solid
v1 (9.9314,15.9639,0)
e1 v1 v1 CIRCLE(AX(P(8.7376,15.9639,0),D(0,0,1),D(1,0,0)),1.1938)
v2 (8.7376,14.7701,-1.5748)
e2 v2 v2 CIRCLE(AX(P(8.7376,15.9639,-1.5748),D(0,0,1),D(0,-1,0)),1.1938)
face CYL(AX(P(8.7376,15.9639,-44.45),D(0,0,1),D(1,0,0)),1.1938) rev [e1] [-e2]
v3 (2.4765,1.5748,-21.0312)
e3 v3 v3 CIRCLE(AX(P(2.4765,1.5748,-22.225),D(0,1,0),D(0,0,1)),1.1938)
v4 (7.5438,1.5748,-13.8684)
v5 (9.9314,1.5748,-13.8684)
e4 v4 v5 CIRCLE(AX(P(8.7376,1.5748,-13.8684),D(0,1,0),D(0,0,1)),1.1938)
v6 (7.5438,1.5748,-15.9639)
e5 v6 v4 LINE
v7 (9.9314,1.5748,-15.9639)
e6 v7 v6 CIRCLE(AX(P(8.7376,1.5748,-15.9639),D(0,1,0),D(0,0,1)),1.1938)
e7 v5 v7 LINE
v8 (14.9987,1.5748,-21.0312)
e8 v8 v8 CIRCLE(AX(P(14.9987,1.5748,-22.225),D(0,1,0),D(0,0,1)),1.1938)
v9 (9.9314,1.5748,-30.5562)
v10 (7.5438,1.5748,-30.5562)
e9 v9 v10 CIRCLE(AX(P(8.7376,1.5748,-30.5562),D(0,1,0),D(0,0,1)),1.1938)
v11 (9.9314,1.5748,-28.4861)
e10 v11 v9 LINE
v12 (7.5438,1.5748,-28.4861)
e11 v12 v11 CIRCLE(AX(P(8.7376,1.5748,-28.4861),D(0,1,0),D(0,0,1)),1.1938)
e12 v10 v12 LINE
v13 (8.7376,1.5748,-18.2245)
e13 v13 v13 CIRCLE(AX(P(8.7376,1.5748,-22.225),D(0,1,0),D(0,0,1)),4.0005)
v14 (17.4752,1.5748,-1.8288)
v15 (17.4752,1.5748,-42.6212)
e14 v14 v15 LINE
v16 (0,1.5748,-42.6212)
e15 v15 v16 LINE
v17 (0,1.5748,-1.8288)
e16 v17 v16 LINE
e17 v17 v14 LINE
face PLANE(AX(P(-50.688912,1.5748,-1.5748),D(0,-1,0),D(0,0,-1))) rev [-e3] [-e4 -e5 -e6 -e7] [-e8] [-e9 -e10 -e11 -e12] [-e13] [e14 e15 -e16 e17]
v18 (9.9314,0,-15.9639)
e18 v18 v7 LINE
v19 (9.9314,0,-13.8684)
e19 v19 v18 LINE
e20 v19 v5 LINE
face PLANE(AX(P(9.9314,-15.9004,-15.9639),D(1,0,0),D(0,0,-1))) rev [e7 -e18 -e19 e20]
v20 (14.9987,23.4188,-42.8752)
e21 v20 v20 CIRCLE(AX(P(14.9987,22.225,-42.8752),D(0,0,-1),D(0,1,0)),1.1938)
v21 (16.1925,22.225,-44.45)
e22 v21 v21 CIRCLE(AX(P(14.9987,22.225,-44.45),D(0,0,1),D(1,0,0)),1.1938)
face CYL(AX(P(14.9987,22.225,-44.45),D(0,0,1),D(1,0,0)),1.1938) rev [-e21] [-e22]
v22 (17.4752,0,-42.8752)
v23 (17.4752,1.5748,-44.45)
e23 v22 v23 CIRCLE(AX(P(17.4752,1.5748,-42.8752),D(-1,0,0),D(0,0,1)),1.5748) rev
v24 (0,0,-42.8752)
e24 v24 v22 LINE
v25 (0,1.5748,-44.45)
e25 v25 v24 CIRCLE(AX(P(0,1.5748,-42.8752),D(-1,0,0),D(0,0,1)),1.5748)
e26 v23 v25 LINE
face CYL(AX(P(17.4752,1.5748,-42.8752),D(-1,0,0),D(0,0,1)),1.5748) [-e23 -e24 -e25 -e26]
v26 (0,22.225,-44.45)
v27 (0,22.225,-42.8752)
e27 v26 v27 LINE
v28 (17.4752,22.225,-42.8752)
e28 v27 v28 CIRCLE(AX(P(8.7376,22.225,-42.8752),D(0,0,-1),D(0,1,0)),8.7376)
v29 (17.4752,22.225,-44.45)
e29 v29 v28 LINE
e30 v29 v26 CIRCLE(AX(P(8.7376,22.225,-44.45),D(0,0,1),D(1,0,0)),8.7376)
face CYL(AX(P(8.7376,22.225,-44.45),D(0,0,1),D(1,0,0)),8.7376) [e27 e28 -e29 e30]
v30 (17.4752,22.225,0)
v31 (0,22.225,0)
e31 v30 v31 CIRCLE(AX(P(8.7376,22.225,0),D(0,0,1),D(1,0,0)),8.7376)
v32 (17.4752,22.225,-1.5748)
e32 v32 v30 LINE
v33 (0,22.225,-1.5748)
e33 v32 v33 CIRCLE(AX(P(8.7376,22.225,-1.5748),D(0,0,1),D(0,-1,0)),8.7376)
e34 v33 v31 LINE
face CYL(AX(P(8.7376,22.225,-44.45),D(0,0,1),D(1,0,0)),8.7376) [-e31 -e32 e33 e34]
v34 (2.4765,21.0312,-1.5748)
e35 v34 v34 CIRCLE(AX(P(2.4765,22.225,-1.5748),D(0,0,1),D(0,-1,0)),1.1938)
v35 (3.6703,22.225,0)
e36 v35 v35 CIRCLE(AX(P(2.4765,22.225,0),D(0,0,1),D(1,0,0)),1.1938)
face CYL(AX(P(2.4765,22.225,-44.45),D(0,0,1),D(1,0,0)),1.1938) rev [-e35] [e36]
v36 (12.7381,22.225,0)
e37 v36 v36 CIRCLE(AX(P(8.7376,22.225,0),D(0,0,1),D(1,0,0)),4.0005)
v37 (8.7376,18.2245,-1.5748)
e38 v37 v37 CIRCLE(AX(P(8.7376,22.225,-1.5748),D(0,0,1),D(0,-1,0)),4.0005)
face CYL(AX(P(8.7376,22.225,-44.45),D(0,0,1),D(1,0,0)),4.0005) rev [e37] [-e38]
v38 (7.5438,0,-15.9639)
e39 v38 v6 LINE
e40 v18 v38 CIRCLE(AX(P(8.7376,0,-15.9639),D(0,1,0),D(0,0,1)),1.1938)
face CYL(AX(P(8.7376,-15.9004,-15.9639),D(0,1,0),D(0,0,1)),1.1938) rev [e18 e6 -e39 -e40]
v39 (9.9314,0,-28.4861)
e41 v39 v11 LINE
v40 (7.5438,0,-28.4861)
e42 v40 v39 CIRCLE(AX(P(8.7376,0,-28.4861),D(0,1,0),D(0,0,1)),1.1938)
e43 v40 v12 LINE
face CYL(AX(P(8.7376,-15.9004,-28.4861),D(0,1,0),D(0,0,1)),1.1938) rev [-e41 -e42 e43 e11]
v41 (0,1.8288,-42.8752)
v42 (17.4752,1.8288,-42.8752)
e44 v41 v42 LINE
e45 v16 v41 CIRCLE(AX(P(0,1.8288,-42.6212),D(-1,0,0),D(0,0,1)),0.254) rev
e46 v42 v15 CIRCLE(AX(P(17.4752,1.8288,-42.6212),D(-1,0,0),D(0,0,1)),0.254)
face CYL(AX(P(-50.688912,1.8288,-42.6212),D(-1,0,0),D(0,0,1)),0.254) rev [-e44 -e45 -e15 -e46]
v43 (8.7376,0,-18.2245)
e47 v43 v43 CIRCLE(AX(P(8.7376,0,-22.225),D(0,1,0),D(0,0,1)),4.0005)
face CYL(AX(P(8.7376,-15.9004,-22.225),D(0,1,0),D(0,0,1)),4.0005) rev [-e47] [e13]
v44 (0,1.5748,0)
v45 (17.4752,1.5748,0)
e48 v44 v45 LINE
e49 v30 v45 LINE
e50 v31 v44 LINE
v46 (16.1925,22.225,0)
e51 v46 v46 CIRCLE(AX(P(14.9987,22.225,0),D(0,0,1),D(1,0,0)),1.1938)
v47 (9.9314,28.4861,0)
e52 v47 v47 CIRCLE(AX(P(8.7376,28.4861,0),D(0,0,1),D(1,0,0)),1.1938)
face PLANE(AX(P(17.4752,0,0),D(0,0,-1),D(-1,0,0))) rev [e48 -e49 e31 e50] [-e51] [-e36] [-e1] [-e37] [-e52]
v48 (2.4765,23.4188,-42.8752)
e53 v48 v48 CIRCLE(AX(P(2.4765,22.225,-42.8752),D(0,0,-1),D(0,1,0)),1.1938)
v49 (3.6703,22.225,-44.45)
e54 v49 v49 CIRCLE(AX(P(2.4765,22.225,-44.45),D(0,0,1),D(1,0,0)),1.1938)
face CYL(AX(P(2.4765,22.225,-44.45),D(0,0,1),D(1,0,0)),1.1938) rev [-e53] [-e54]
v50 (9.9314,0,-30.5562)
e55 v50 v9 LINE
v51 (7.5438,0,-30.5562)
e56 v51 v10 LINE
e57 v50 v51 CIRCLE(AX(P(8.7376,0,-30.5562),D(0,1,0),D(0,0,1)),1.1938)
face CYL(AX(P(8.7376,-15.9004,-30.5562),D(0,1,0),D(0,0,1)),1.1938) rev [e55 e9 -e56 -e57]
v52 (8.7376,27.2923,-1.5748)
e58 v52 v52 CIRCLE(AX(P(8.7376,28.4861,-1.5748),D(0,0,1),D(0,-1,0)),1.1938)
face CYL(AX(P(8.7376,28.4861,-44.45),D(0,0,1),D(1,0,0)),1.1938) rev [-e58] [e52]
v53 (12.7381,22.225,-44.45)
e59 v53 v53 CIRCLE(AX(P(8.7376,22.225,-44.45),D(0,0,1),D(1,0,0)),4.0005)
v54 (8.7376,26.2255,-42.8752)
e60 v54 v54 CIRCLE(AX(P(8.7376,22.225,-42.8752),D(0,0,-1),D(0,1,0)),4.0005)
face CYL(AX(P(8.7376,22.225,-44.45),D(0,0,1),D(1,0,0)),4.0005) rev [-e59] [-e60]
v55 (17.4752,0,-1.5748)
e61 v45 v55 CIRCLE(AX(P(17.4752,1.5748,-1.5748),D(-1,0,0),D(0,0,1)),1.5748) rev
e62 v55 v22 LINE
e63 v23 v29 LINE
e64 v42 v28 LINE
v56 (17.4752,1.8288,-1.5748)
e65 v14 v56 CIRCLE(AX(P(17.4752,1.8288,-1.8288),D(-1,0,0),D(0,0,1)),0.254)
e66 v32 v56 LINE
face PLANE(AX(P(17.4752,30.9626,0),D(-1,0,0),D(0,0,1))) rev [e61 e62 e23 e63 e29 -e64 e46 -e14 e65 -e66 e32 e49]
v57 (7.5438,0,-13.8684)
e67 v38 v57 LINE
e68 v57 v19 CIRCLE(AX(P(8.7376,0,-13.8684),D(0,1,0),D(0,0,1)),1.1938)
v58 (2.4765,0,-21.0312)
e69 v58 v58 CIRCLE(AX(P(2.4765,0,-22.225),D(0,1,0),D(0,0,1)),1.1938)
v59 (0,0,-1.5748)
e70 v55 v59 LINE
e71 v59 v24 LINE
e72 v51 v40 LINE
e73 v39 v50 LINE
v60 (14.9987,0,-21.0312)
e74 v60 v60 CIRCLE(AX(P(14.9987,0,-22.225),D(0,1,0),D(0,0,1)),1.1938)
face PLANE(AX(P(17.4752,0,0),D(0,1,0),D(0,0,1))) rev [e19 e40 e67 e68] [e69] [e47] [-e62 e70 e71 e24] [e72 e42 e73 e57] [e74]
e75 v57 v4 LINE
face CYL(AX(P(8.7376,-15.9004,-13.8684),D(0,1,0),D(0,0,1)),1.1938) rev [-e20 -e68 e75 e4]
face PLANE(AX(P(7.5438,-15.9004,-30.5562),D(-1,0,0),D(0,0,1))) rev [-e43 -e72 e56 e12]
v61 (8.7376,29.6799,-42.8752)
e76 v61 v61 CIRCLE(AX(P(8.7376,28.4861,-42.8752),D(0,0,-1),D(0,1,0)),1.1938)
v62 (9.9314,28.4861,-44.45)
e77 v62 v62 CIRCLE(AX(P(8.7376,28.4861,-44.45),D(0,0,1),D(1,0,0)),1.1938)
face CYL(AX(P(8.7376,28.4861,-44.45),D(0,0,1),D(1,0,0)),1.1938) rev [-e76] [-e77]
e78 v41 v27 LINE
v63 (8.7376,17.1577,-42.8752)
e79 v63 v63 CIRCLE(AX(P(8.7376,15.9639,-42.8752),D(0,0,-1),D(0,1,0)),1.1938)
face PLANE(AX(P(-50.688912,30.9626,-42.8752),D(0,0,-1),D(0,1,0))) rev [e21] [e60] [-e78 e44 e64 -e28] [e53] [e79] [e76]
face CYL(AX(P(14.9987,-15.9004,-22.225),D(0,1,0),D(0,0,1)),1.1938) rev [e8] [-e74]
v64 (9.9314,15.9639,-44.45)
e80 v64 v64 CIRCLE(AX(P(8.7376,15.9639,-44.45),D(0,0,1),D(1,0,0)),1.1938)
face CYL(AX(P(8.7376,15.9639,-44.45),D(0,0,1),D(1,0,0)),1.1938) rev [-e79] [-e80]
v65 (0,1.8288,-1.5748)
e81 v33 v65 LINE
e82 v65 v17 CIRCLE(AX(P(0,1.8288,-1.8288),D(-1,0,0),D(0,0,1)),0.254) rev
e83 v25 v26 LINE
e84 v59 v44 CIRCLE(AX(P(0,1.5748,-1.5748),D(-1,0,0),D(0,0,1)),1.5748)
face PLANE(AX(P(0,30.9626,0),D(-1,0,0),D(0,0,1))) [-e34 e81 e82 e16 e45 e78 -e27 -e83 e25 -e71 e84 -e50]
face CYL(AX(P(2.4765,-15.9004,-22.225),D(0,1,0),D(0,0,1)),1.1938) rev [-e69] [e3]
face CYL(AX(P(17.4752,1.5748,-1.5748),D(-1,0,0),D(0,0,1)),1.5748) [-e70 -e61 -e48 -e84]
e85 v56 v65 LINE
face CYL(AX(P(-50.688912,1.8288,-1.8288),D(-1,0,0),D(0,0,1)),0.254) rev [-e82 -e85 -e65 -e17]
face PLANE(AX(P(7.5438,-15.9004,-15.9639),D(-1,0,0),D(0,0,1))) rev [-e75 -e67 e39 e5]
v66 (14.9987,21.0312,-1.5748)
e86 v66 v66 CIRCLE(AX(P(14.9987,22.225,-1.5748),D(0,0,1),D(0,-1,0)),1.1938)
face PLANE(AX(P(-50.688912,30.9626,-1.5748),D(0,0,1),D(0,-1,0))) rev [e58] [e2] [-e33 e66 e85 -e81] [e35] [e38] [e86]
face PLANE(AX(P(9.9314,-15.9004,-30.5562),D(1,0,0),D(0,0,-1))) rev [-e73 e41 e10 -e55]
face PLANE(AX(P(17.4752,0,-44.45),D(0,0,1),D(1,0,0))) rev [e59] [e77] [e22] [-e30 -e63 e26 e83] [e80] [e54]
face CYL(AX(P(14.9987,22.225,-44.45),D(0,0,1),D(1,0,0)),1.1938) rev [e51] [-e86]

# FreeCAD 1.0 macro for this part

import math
import FreeCAD as App
import Part
import Sketcher
Q = App.Units.Quantity


def edges_at(feature, points):
    """Names of the edges that pass closest to the given points."""
    edges = feature.Shape.Edges
    near = lambda p: min(range(len(edges)), key=lambda i: edges[i].distToShape(Part.Vertex(*p))[0])
    return sorted({f"Edge{near(p) + 1}" for p in points})

doc = App.newDocument("Part")
body = doc.addObject("PartDesign::Body", "Body")

sketch1 = body.newObject("Sketcher::SketchObject", "Sketch")
sketch1.AttachmentSupport = (doc.getObject("YZ_Plane"), [""])
sketch1.MapMode = "FlatFace"
sketch1.addGeometry([
    Part.LineSegment(App.Vector(30.9626, 0, 0), App.Vector(0, 0, 0)),
    Part.LineSegment(App.Vector(0, 0, 0), App.Vector(0, -44.45, 0)),
    Part.LineSegment(App.Vector(0, -44.45, 0), App.Vector(30.9626, -44.45, 0)),
    Part.LineSegment(App.Vector(30.9626, -44.45, 0), App.Vector(30.9626, 0, 0)),
], False)
sketch1.addConstraint([
    Sketcher.Constraint("Coincident", 0, 2, 1, 1),
    Sketcher.Constraint("Coincident", 1, 2, 2, 1),
    Sketcher.Constraint("Coincident", 2, 2, 3, 1),
    Sketcher.Constraint("Coincident", 3, 2, 0, 1),
    Sketcher.Constraint("Horizontal", 0),
    Sketcher.Constraint("Vertical", 1),
    Sketcher.Constraint("Horizontal", 2),
    Sketcher.Constraint("Vertical", 3),
    Sketcher.Constraint("Coincident", 0, 2, -1, 1),
    Sketcher.Constraint("DistanceY", 1, 2, 1, 1, Q("1.75 in")),
    Sketcher.Constraint("DistanceX", 0, 2, 0, 1, Q("1.219 in")),
])
pad1 = body.newObject("PartDesign::Pad", "Pad")
pad1.Profile = sketch1
pad1.Length = Q("0.688 in")

sketch2 = body.newObject("Sketcher::SketchObject", "Sketch001")
sketch2.AttachmentSupport = (doc.getObject("YZ_Plane"), [""])
sketch2.MapMode = "FlatFace"
sketch2.AttachmentOffset = App.Placement(App.Vector(0, 0, 0.688 * 25.4), App.Rotation())
sketch2.addGeometry([
    Part.LineSegment(App.Vector(30.9626, -1.5748, 0), App.Vector(1.5748, -1.5748, 0)),
    Part.LineSegment(App.Vector(1.5748, -1.5748, 0), App.Vector(1.5748, -42.8752, 0)),
    Part.LineSegment(App.Vector(1.5748, -42.8752, 0), App.Vector(30.9626, -42.8752, 0)),
    Part.LineSegment(App.Vector(30.9626, -42.8752, 0), App.Vector(30.9626, -1.5748, 0)),
], False)
sketch2.addConstraint([
    Sketcher.Constraint("Coincident", 0, 2, 1, 1),
    Sketcher.Constraint("Coincident", 1, 2, 2, 1),
    Sketcher.Constraint("Coincident", 2, 2, 3, 1),
    Sketcher.Constraint("Coincident", 3, 2, 0, 1),
    Sketcher.Constraint("Horizontal", 0),
    Sketcher.Constraint("Vertical", 1),
    Sketcher.Constraint("Horizontal", 2),
    Sketcher.Constraint("Vertical", 3),
    Sketcher.Constraint("DistanceX", 0, 2, 0, 1, Q("1.157 in")),
    Sketcher.Constraint("DistanceY", 1, 2, 1, 1, Q("1.626 in")),
    Sketcher.Constraint("DistanceX", -1, 1, 0, 2, Q("0.062 in")),
    Sketcher.Constraint("DistanceY", 0, 2, -1, 1, Q("0.062 in")),
])
pocket1 = body.newObject("PartDesign::Pocket", "Pocket")
pocket1.Profile = sketch2
pocket1.Length = Q("0.688 in")

sketch3 = body.newObject("Sketcher::SketchObject", "Sketch002")
sketch3.AttachmentSupport = (doc.getObject("XY_Plane"), [""])
sketch3.MapMode = "FlatFace"
sketch3.addGeometry([
    Part.LineSegment(App.Vector(-6.692, 37.655, 0), App.Vector(-6.692, -6.692, 0)),
    Part.LineSegment(App.Vector(-6.692, -6.692, 0), App.Vector(24.167, -6.692, 0)),
    Part.LineSegment(App.Vector(24.167, -6.692, 0), App.Vector(24.167, 37.655, 0)),
    Part.LineSegment(App.Vector(24.167, 37.655, 0), App.Vector(-6.692, 37.655, 0)),
    Part.LineSegment(App.Vector(0, 0, 0), App.Vector(0, 22.225, 0)),
    Part.ArcOfCircle(Part.Circle(App.Vector(8.7376, 22.225, 0), App.Vector(0, 0, 1), 8.7376), math.radians(0), math.radians(180)),
    Part.LineSegment(App.Vector(17.4752, 22.225, 0), App.Vector(17.4752, 0, 0)),
    Part.LineSegment(App.Vector(17.4752, 0, 0), App.Vector(0, 0, 0)),
], False)
sketch3.addConstraint([
    Sketcher.Constraint("Coincident", 0, 2, 1, 1),
    Sketcher.Constraint("Coincident", 1, 2, 2, 1),
    Sketcher.Constraint("Coincident", 2, 2, 3, 1),
    Sketcher.Constraint("Coincident", 3, 2, 0, 1),
    Sketcher.Constraint("Tangent", 4, 2, 5, 2),
    Sketcher.Constraint("Tangent", 5, 1, 6, 1),
    Sketcher.Constraint("Coincident", 6, 2, 7, 1),
    Sketcher.Constraint("Coincident", 7, 2, 4, 1),
    Sketcher.Constraint("Vertical", 0),
    Sketcher.Constraint("Horizontal", 1),
    Sketcher.Constraint("Vertical", 2),
    Sketcher.Constraint("Horizontal", 3),
    Sketcher.Constraint("Vertical", 4),
    Sketcher.Constraint("Vertical", 6),
    Sketcher.Constraint("Horizontal", 7),
    Sketcher.Constraint("Coincident", 7, 2, -1, 1),
    Sketcher.Constraint("Radius", 5, Q("0.344 in")),
    Sketcher.Constraint("DistanceY", 4, 1, 4, 2, Q("0.875 in")),
    Sketcher.Constraint("DistanceX", 1, 1, 1, 2, Q("30.859 mm")),
    Sketcher.Constraint("DistanceY", 0, 2, 0, 1, Q("44.347 mm")),
    Sketcher.Constraint("DistanceX", 0, 2, -1, 1, Q("6.692 mm")),
    Sketcher.Constraint("DistanceY", 0, 2, -1, 1, Q("6.692 mm")),
])
pocket2 = body.newObject("PartDesign::Pocket", "Pocket001")
pocket2.Profile = sketch3
pocket2.Type = "ThroughAll"

sketch4 = body.newObject("Sketcher::SketchObject", "Sketch003")
sketch4.AttachmentSupport = (doc.getObject("XY_Plane"), [""])
sketch4.MapMode = "FlatFace"
sketch4.addGeometry([
    Part.Circle(App.Vector(8.7376, 22.225, 0), App.Vector(0, 0, 1), 4.0005),
    Part.Circle(App.Vector(2.4765, 22.225, 0), App.Vector(0, 0, 1), 1.1938),
    Part.Circle(App.Vector(14.9987, 22.225, 0), App.Vector(0, 0, 1), 1.1938),
    Part.Circle(App.Vector(8.7376, 15.9639, 0), App.Vector(0, 0, 1), 1.1938),
    Part.Circle(App.Vector(8.7376, 28.4861, 0), App.Vector(0, 0, 1), 1.1938),
], False)
sketch4.addConstraint([
    Sketcher.Constraint("Equal", 1, 2),
    Sketcher.Constraint("Equal", 2, 3),
    Sketcher.Constraint("Equal", 3, 4),
    Sketcher.Constraint("Horizontal", 0, 3, 1, 3),
    Sketcher.Constraint("Horizontal", 1, 3, 2, 3),
    Sketcher.Constraint("Vertical", 0, 3, 3, 3),
    Sketcher.Constraint("Vertical", 3, 3, 4, 3),
    Sketcher.Constraint("Diameter", 0, Q("0.315 in")),
    Sketcher.Constraint("Diameter", 1, Q("0.094 in")),
    Sketcher.Constraint("DistanceX", -1, 1, 0, 3, Q("0.344 in")),
    Sketcher.Constraint("DistanceY", -1, 1, 0, 3, Q("0.875 in")),
    Sketcher.Constraint("DistanceX", 1, 3, 2, 3, Q("0.493 in")),
    Sketcher.Constraint("DistanceY", 3, 3, 4, 3, Q("0.493 in")),
    Sketcher.Constraint("DistanceX", -1, 1, 1, 3, Q("0.0975 in")),
    Sketcher.Constraint("DistanceY", -1, 1, 3, 3, Q("0.6285 in")),
])
pocket3 = body.newObject("PartDesign::Pocket", "Pocket002")
pocket3.Profile = sketch4
pocket3.Type = "ThroughAll"

sketch5 = body.newObject("Sketcher::SketchObject", "Sketch004")
sketch5.AttachmentSupport = (doc.getObject("XZ_Plane"), [""])
sketch5.MapMode = "FlatFace"
sketch5.AttachmentOffset = App.Placement(App.Vector(0, 0, -0.062 * 25.4), App.Rotation())
sketch5.addGeometry([
    Part.Circle(App.Vector(8.7376, -22.225, 0), App.Vector(0, 0, 1), 4.0005),
    Part.Circle(App.Vector(2.4765, -22.225, 0), App.Vector(0, 0, 1), 1.1938),
    Part.Circle(App.Vector(14.9987, -22.225, 0), App.Vector(0, 0, 1), 1.1938),
    Part.LineSegment(App.Vector(9.9314, -28.4861, 0), App.Vector(9.9314, -30.5562, 0)),
    Part.ArcOfCircle(Part.Circle(App.Vector(8.7376, -30.5562, 0), App.Vector(0, 0, 1), 1.1938), math.radians(180), math.radians(360)),
    Part.LineSegment(App.Vector(7.5438, -30.5562, 0), App.Vector(7.5438, -28.4861, 0)),
    Part.ArcOfCircle(Part.Circle(App.Vector(8.7376, -28.4861, 0), App.Vector(0, 0, 1), 1.1938), math.radians(0), math.radians(180)),
    Part.LineSegment(App.Vector(7.5438, -15.9639, 0), App.Vector(7.5438, -13.8684, 0)),
    Part.ArcOfCircle(Part.Circle(App.Vector(8.7376, -13.8684, 0), App.Vector(0, 0, 1), 1.1938), math.radians(0), math.radians(180)),
    Part.LineSegment(App.Vector(9.9314, -13.8684, 0), App.Vector(9.9314, -15.9639, 0)),
    Part.ArcOfCircle(Part.Circle(App.Vector(8.7376, -15.9639, 0), App.Vector(0, 0, 1), 1.1938), math.radians(180), math.radians(360)),
], False)
sketch5.addConstraint([
    Sketcher.Constraint("Tangent", 3, 2, 4, 2),
    Sketcher.Constraint("Tangent", 4, 1, 5, 1),
    Sketcher.Constraint("Tangent", 5, 2, 6, 2),
    Sketcher.Constraint("Tangent", 6, 1, 3, 1),
    Sketcher.Constraint("Tangent", 7, 2, 8, 2),
    Sketcher.Constraint("Tangent", 8, 1, 9, 1),
    Sketcher.Constraint("Tangent", 9, 2, 10, 2),
    Sketcher.Constraint("Tangent", 10, 1, 7, 1),
    Sketcher.Constraint("Vertical", 3),
    Sketcher.Constraint("Vertical", 5),
    Sketcher.Constraint("Vertical", 7),
    Sketcher.Constraint("Vertical", 9),
    Sketcher.Constraint("Equal", 1, 2),
    Sketcher.Constraint("Equal", 2, 4),
    Sketcher.Constraint("Equal", 6, 8),
    Sketcher.Constraint("Horizontal", 0, 3, 1, 3),
    Sketcher.Constraint("Horizontal", 1, 3, 2, 3),
    Sketcher.Constraint("Vertical", 0, 3, 4, 3),
    Sketcher.Constraint("Vertical", 6, 3, 8, 3),
    Sketcher.Constraint("Diameter", 0, Q("0.315 in")),
    Sketcher.Constraint("Diameter", 1, Q("0.094 in")),
    Sketcher.Constraint("DistanceY", 3, 2, 3, 1, Q("0.0815 in")),
    Sketcher.Constraint("DistanceY", 7, 1, 7, 2, Q("0.0825 in")),
    Sketcher.Constraint("DistanceX", -1, 1, 0, 3, Q("0.344 in")),
    Sketcher.Constraint("DistanceY", 0, 3, -1, 1, Q("0.875 in")),
    Sketcher.Constraint("DistanceY", 4, 3, -1, 1, Q("1.203 in")),
    Sketcher.Constraint("DistanceY", 8, 3, -1, 1, Q("0.546 in")),
    Sketcher.Constraint("DistanceX", 1, 3, 2, 3, Q("0.493 in")),
    Sketcher.Constraint("DistanceX", -1, 1, 1, 3, Q("0.0975 in")),
])
pocket4 = body.newObject("PartDesign::Pocket", "Pocket003")
pocket4.Profile = sketch5
pocket4.Length = Q("0.688 in")
pocket4.Reversed = True
doc.recompute()

fillet = body.newObject("PartDesign::Fillet", "Fillet")
fillet.Base = (pocket4, edges_at(pocket4, [(8.738, 0, -44.45), (8.738, 0, 0)]))
fillet.Radius = Q("0.062 in")
doc.recompute()

fillet2 = body.newObject("PartDesign::Fillet", "Fillet001")
fillet2.Base = (fillet, edges_at(fillet, [(8.738, 1.575, -42.875), (8.738, 1.575, -1.575)]))
fillet2.Radius = Q("0.01 in")

doc.recompute()
